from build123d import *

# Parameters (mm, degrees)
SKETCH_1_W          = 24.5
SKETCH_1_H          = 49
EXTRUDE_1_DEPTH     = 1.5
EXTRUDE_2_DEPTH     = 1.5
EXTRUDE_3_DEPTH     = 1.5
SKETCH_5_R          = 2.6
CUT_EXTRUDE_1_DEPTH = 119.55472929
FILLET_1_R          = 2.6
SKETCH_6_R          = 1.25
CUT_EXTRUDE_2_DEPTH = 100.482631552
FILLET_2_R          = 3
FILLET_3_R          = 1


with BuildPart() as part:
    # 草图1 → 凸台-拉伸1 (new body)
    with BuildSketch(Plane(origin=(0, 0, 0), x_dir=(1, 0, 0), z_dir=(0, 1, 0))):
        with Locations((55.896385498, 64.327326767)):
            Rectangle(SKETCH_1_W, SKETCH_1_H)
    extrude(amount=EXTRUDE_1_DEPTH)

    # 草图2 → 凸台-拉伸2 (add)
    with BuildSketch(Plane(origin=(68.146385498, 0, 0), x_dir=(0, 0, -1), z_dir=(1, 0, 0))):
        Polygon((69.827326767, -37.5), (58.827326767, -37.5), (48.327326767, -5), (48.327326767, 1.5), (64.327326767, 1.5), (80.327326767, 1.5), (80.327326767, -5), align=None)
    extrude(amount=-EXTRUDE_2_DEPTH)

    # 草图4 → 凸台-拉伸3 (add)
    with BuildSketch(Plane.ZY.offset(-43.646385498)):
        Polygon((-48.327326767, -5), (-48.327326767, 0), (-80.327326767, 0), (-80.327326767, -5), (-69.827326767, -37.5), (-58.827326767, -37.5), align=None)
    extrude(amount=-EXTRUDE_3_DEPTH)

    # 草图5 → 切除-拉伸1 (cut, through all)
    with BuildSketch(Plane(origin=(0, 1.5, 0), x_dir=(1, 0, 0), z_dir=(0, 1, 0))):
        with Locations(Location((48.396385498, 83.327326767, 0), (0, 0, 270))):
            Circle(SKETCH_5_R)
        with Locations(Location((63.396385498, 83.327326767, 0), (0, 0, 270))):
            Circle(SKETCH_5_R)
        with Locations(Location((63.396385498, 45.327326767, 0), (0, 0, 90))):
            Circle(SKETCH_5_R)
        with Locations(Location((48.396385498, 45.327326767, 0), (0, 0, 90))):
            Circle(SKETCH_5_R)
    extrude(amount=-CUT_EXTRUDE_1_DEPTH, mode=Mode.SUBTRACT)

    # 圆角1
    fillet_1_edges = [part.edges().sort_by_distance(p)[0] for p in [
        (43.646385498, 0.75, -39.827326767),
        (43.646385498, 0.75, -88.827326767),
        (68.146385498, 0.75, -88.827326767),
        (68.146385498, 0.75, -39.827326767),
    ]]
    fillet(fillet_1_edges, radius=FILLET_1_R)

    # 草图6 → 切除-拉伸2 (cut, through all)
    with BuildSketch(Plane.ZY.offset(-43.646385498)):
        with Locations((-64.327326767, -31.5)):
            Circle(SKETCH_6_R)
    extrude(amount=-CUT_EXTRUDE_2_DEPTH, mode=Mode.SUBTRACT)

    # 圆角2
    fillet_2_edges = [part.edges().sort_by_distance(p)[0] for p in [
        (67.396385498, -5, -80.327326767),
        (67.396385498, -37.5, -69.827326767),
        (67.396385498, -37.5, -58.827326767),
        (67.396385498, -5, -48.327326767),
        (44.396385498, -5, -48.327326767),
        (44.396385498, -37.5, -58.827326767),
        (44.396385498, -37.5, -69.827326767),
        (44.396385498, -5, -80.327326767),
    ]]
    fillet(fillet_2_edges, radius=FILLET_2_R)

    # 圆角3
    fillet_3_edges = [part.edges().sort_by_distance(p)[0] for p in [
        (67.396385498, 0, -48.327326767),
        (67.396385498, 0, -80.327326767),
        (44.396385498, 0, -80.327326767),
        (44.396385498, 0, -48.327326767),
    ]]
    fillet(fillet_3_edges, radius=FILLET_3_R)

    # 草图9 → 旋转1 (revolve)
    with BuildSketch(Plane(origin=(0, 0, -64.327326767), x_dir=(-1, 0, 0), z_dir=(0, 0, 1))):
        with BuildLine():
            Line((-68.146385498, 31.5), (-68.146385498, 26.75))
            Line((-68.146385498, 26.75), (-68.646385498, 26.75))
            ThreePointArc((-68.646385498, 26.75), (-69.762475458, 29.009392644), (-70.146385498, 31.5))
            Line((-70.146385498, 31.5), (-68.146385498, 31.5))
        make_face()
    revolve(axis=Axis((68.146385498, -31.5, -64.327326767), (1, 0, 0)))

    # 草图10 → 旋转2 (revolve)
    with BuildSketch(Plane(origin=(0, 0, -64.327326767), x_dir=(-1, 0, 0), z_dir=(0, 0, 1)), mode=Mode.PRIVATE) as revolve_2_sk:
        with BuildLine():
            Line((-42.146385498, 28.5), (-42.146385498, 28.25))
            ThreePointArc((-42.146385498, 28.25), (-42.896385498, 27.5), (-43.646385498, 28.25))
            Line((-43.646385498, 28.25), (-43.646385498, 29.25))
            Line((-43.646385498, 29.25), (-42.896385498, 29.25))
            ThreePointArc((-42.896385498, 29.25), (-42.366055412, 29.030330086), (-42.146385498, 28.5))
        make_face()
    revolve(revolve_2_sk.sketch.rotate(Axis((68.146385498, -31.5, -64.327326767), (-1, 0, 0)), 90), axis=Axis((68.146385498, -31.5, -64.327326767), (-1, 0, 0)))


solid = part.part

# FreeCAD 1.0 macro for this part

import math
import FreeCAD as App
import Part
import Sketcher


def edges_at(feature, points):
    """Names of the edges that pass closest to the given points."""
    edges = feature.Shape.Edges
    near = lambda p: min(range(len(edges)), key=lambda i: edges[i].distToShape(Part.Vertex(*p))[0])
    return sorted({f"Edge{near(p) + 1}" for p in points})

doc = App.newDocument("Part")
params = doc.addObject("Spreadsheet::Sheet", "Params")
for row, (alias, value) in enumerate([
    ("sketch1_height", "49 mm"),
    ("sketch1_width", "24.5 mm"),
    ("pad1_length", "1.5 mm"),
    ("sketch2_height", "11 mm"),
    ("sketch2_height2", "32 mm"),
    ("sketch2_width", "6.5 mm"),
    ("pad2_length", "1.5 mm"),
    ("sketch3_width", "5 mm"),
    ("sketch3_height", "32 mm"),
    ("sketch3_height2", "11 mm"),
    ("pad3_length", "1.5 mm"),
    ("sketch4_diameter", "5.2 mm"),
    ("fillet_radius", "2.6 mm"),
    ("sketch5_diameter", "2.5 mm"),
    ("fillet2_radius", "3 mm"),
    ("fillet3_radius", "1 mm"),
    ("sketch6_width", "2 mm"),
    ("sketch6_width2", "0.5 mm"),
    ("sketch6_height", "4.75 mm"),
    ("revolution_angle", "360 deg"),
    ("sketch7_height", "1 mm"),
    ("sketch7_radius", "0.75 mm"),
    ("revolution2_angle", "360 deg"),
], start=1):
    params.set(f"A{row}", alias)
    params.set(f"B{row}", "=" + value)
    params.setAlias(f"B{row}", alias)

body = doc.addObject("PartDesign::Body", "Body")

sketch1 = body.newObject("Sketcher::SketchObject", "Sketch")
sketch1.AttachmentSupport = (doc.getObject("XZ_Plane"), [""])
sketch1.MapMode = "FlatFace"
sketch1.addGeometry([
    Part.LineSegment(App.Vector(43.646385, -88.827327, 0), App.Vector(43.646385, -39.827327, 0)),
    Part.LineSegment(App.Vector(43.646385, -39.827327, 0), App.Vector(68.146385, -39.827327, 0)),
    Part.LineSegment(App.Vector(68.146385, -39.827327, 0), App.Vector(68.146385, -88.827327, 0)),
    Part.LineSegment(App.Vector(68.146385, -88.827327, 0), App.Vector(43.646385, -88.827327, 0)),
], False)
sketch1.addConstraint([
    Sketcher.Constraint("Coincident", 0, 2, 1, 1),
    Sketcher.Constraint("Coincident", 1, 2, 2, 1),
    Sketcher.Constraint("Coincident", 2, 2, 3, 1),
    Sketcher.Constraint("Coincident", 3, 2, 0, 1),
    Sketcher.Constraint("Vertical", 0),
    Sketcher.Constraint("Horizontal", 1),
    Sketcher.Constraint("Vertical", 2),
    Sketcher.Constraint("Horizontal", 3),
    Sketcher.Constraint("DistanceY", 0, 1, 0, 2, 49.0),
    Sketcher.Constraint("DistanceX", 1, 1, 1, 2, 24.5),
    Sketcher.Constraint("DistanceX", -1, 1, 0, 2, 43.646385),
    Sketcher.Constraint("DistanceY", 0, 2, -1, 1, 39.827327),
])
sketch1.setExpression("Constraints[8]", "Params.sketch1_height")
sketch1.setExpression("Constraints[9]", "Params.sketch1_width")
pad1 = body.newObject("PartDesign::Pad", "Pad")
pad1.Profile = sketch1
pad1.setExpression("Length", "Params.pad1_length")
pad1.Reversed = True

sketch2 = body.newObject("Sketcher::SketchObject", "Sketch001")
sketch2.AttachmentSupport = (doc.getObject("YZ_Plane"), [""])
sketch2.MapMode = "FlatFace"
sketch2.AttachmentOffset = App.Placement(App.Vector(0, 0, 68.146385), App.Rotation())
sketch2.addGeometry([
    Part.LineSegment(App.Vector(-37.5, -58.827327, 0), App.Vector(-37.5, -69.827327, 0)),
    Part.LineSegment(App.Vector(-37.5, -69.827327, 0), App.Vector(-5, -80.327327, 0)),
    Part.LineSegment(App.Vector(-5, -80.327327, 0), App.Vector(1.5, -80.327327, 0)),
    Part.LineSegment(App.Vector(1.5, -80.327327, 0), App.Vector(1.5, -48.327327, 0)),
    Part.LineSegment(App.Vector(1.5, -48.327327, 0), App.Vector(-5, -48.327327, 0)),
    Part.LineSegment(App.Vector(-5, -48.327327, 0), App.Vector(-37.5, -58.827327, 0)),
], False)
sketch2.addConstraint([
    Sketcher.Constraint("Coincident", 0, 2, 1, 1),
    Sketcher.Constraint("Coincident", 1, 2, 2, 1),
    Sketcher.Constraint("Coincident", 2, 2, 3, 1),
    Sketcher.Constraint("Coincident", 3, 2, 4, 1),
    Sketcher.Constraint("Coincident", 4, 2, 5, 1),
    Sketcher.Constraint("Coincident", 5, 2, 0, 1),
    Sketcher.Constraint("Vertical", 0),
    Sketcher.Constraint("Horizontal", 2),
    Sketcher.Constraint("Vertical", 3),
    Sketcher.Constraint("Horizontal", 4),
    Sketcher.Constraint("Vertical", 1, 2, 4, 2),
    Sketcher.Constraint("Equal", 1, 5),
    Sketcher.Constraint("DistanceY", 0, 2, 0, 1, 11.0),
    Sketcher.Constraint("DistanceY", 3, 1, 3, 2, 32.0),
    Sketcher.Constraint("DistanceX", 2, 1, 2, 2, 6.5),
    Sketcher.Constraint("DistanceX", 1, 2, -1, 1, 5.0),
    Sketcher.Constraint("DistanceX", 0, 2, 2, 2, 39.0),
    Sketcher.Constraint("DistanceY", 0, 2, -1, 1, 69.827327),
])
sketch2.setExpression("Constraints[12]", "Params.sketch2_height")
sketch2.setExpression("Constraints[13]", "Params.sketch2_height2")
sketch2.setExpression("Constraints[14]", "Params.sketch2_width")
pad2 = body.newObject("PartDesign::Pad", "Pad001")
pad2.Profile = sketch2
pad2.setExpression("Length", "Params.pad2_length")
pad2.Reversed = True

sketch3 = body.newObject("Sketcher::SketchObject", "Sketch002")
sketch3.AttachmentSupport = (doc.getObject("YZ_Plane"), [""])
sketch3.MapMode = "FlatFace"
sketch3.AttachmentOffset = App.Placement(App.Vector(0, 0, 43.646385), App.Rotation())
sketch3.addGeometry([
    Part.LineSegment(App.Vector(-5, -48.327327, 0), App.Vector(0, -48.327327, 0)),
    Part.LineSegment(App.Vector(0, -48.327327, 0), App.Vector(0, -80.327327, 0)),
    Part.LineSegment(App.Vector(0, -80.327327, 0), App.Vector(-5, -80.327327, 0)),
    Part.LineSegment(App.Vector(-5, -80.327327, 0), App.Vector(-37.5, -69.827327, 0)),
    Part.LineSegment(App.Vector(-37.5, -69.827327, 0), App.Vector(-37.5, -58.827327, 0)),
    Part.LineSegment(App.Vector(-37.5, -58.827327, 0), App.Vector(-5, -48.327327, 0)),
], False)
sketch3.addConstraint([
    Sketcher.Constraint("Coincident", 0, 2, 1, 1),
    Sketcher.Constraint("Coincident", 1, 2, 2, 1),
    Sketcher.Constraint("Coincident", 2, 2, 3, 1),
    Sketcher.Constraint("Coincident", 3, 2, 4, 1),
    Sketcher.Constraint("Coincident", 4, 2, 5, 1),
    Sketcher.Constraint("Coincident", 5, 2, 0, 1),
    Sketcher.Constraint("Horizontal", 0),
    Sketcher.Constraint("Vertical", 1),
    Sketcher.Constraint("Horizontal", 2),
    Sketcher.Constraint("Vertical", 4),
    Sketcher.Constraint("PointOnObject", 0, 2, -2),
    Sketcher.Constraint("Vertical", 2, 2, 5, 2),
    Sketcher.Constraint("Equal", 3, 5),
    Sketcher.Constraint("DistanceX", 0, 1, 0, 2, 5.0),
    Sketcher.Constraint("DistanceY", 1, 2, 1, 1, 32.0),
    Sketcher.Constraint("DistanceY", 4, 1, 4, 2, 11.0),
    Sketcher.Constraint("DistanceX", 3, 2, -1, 1, 37.5),
    Sketcher.Constraint("DistanceY", 0, 2, -1, 1, 48.327327),
])
sketch3.setExpression("Constraints[13]", "Params.sketch3_width")
sketch3.setExpression("Constraints[14]", "Params.sketch3_height")
sketch3.setExpression("Constraints[15]", "Params.sketch3_height2")
pad3 = body.newObject("PartDesign::Pad", "Pad002")
pad3.Profile = sketch3
pad3.setExpression("Length", "Params.pad3_length")

sketch4 = body.newObject("Sketcher::SketchObject", "Sketch003")
sketch4.AttachmentSupport = (doc.getObject("XZ_Plane"), [""])
sketch4.MapMode = "FlatFace"
sketch4.AttachmentOffset = App.Placement(App.Vector(0, 0, -1.5), App.Rotation())
sketch4.addGeometry([
    Part.Circle(App.Vector(48.396385, -83.327327, 0), App.Vector(0, 0, 1), 2.6),
    Part.Circle(App.Vector(63.396385, -83.327327, 0), App.Vector(0, 0, 1), 2.6),
    Part.Circle(App.Vector(63.396385, -45.327327, 0), App.Vector(0, 0, 1), 2.6),
    Part.Circle(App.Vector(48.396385, -45.327327, 0), App.Vector(0, 0, 1), 2.6),
], False)
sketch4.addConstraint([
    Sketcher.Constraint("Equal", 0, 1),
    Sketcher.Constraint("Equal", 1, 2),
    Sketcher.Constraint("Equal", 2, 3),
    Sketcher.Constraint("Horizontal", 0, 3, 1, 3),
    Sketcher.Constraint("Horizontal", 2, 3, 3, 3),
    Sketcher.Constraint("Vertical", 1, 3, 2, 3),
    Sketcher.Constraint("Vertical", 0, 3, 3, 3),
    Sketcher.Constraint("Diameter", 0, 5.2),
    Sketcher.Constraint("DistanceX", 0, 3, 1, 3, 15.0),
    Sketcher.Constraint("DistanceY", 1, 3, 2, 3, 38.0),
    Sketcher.Constraint("DistanceX", -1, 1, 0, 3, 48.396385),
    Sketcher.Constraint("DistanceY", 0, 3, -1, 1, 83.327327),
])
sketch4.setExpression("Constraints[7]", "Params.sketch4_diameter")
pocket1 = body.newObject("PartDesign::Pocket", "Pocket")
pocket1.Profile = sketch4
pocket1.Type = "ThroughAll"
pocket1.Reversed = True
doc.recompute()

fillet = body.newObject("PartDesign::Fillet", "Fillet")
fillet.Base = (pocket1, edges_at(pocket1, [
    (43.646, 0.75, -39.827),
    (43.646, 0.75, -88.827),
    (68.146, 0.75, -88.827),
    (68.146, 0.75, -39.827),
]))
fillet.setExpression("Radius", "Params.fillet_radius")

sketch5 = body.newObject("Sketcher::SketchObject", "Sketch004")
sketch5.AttachmentSupport = (doc.getObject("YZ_Plane"), [""])
sketch5.MapMode = "FlatFace"
sketch5.AttachmentOffset = App.Placement(App.Vector(0, 0, 43.646385), App.Rotation())
sketch5.addGeometry(Part.Circle(App.Vector(-31.5, -64.327327, 0), App.Vector(0, 0, 1), 1.25), False)
sketch5.addConstraint([
    Sketcher.Constraint("Diameter", 0, 2.5),
    Sketcher.Constraint("DistanceX", 0, 3, -1, 1, 31.5),
    Sketcher.Constraint("DistanceY", 0, 3, -1, 1, 64.327327),
])
sketch5.setExpression("Constraints[0]", "Params.sketch5_diameter")
pocket2 = body.newObject("PartDesign::Pocket", "Pocket001")
pocket2.Profile = sketch5
pocket2.Type = "ThroughAll"
pocket2.Reversed = True
doc.recompute()

fillet2 = body.newObject("PartDesign::Fillet", "Fillet001")
fillet2.Base = (pocket2, edges_at(pocket2, [
    (67.396, -5, -80.327),
    (67.396, -37.5, -69.827),
    (67.396, -37.5, -58.827),
    (67.396, -5, -48.327),
    (44.396, -5, -48.327),
    (44.396, -37.5, -58.827),
    (44.396, -37.5, -69.827),
    (44.396, -5, -80.327),
]))
fillet2.setExpression("Radius", "Params.fillet2_radius")
doc.recompute()

fillet3 = body.newObject("PartDesign::Fillet", "Fillet002")
fillet3.Base = (fillet2, edges_at(fillet2, [
    (67.396, 0, -48.327),
    (67.396, 0, -80.327),
    (44.396, 0, -80.327),
    (44.396, 0, -48.327),
]))
fillet3.setExpression("Radius", "Params.fillet3_radius")

sketch6 = body.newObject("Sketcher::SketchObject", "Sketch005")
sketch6.AttachmentSupport = (doc.getObject("XY_Plane"), [""])
sketch6.MapMode = "FlatFace"
sketch6.AttachmentOffset = App.Placement(App.Vector(0, 0, -64.327327), App.Rotation())
sketch6.addGeometry([
    Part.LineSegment(App.Vector(68.146385, -26.75, 0), App.Vector(68.146385, -31.5, 0)),
    Part.LineSegment(App.Vector(68.146385, -31.5, 0), App.Vector(70.146385, -31.5, 0)),
    Part.ArcOfCircle(Part.Circle(App.Vector(61.875552, -31.5, 0), App.Vector(0, 0, 1), 8.270833), math.radians(0), math.radians(35.051137)),
    Part.LineSegment(App.Vector(68.646385, -26.75, 0), App.Vector(68.146385, -26.75, 0)),
], False)
sketch6.addGeometry(Part.LineSegment(App.Vector(61.875552, -31.5, 0), App.Vector(70.146385, -31.5, 0)), True)
sketch6.addConstraint([
    Sketcher.Constraint("Coincident", 0, 2, 1, 1),
    Sketcher.Constraint("Coincident", 1, 2, 2, 1),
    Sketcher.Constraint("Coincident", 2, 2, 3, 1),
    Sketcher.Constraint("Coincident", 3, 2, 0, 1),
    Sketcher.Constraint("Vertical", 0),
    Sketcher.Constraint("Horizontal", 1),
    Sketcher.Constraint("Horizontal", 3),
    Sketcher.Constraint("Horizontal", 4),
    Sketcher.Constraint("Coincident", 4, 1, 2, 3),
    Sketcher.Constraint("Coincident", 4, 2, 1, 2),
    Sketcher.Constraint("DistanceX", 1, 1, 1, 2, 2.0),
    Sketcher.Constraint("DistanceX", 3, 2, 3, 1, 0.5),
    Sketcher.Constraint("DistanceY", 0, 2, 0, 1, 4.75),
    Sketcher.Constraint("DistanceY", 2, 3, -1, 1, 31.5),
    Sketcher.Constraint("DistanceX", -1, 1, 2, 3, 61.875552),
])
sketch6.setExpression("Constraints[10]", "Params.sketch6_width")
sketch6.setExpression("Constraints[11]", "Params.sketch6_width2")
sketch6.setExpression("Constraints[12]", "Params.sketch6_height")
revolution = body.newObject("PartDesign::Revolution", "Revolution")
revolution.Profile = sketch6
revolution.ReferenceAxis = (sketch6, ["Axis0"])
revolution.setExpression("Angle", "Params.revolution_angle")

sketch7 = body.newObject("Sketcher::SketchObject", "Sketch006")
sketch7.AttachmentSupport = (doc.getObject("XY_Plane"), [""])
sketch7.MapMode = "FlatFace"
sketch7.AttachmentOffset = App.Placement(App.Vector(0, 0, -64.327327), App.Rotation())
sketch7.addGeometry([
    Part.LineSegment(App.Vector(42.146385, -28.25, 0), App.Vector(42.146385, -28.5, 0)),
    Part.ArcOfCircle(Part.Circle(App.Vector(42.896385, -28.5, 0), App.Vector(0, 0, 1), 0.75), math.radians(180), math.radians(270)),
    Part.LineSegment(App.Vector(42.896385, -29.25, 0), App.Vector(43.646385, -29.25, 0)),
    Part.LineSegment(App.Vector(43.646385, -29.25, 0), App.Vector(43.646385, -28.25, 0)),
    Part.ArcOfCircle(Part.Circle(App.Vector(42.896385, -28.25, 0), App.Vector(0, 0, 1), 0.75), math.radians(0), math.radians(180)),
], False)
sketch7.addGeometry(Part.LineSegment(App.Vector(43.646385, -31.5, 0), App.Vector(42.146385, -31.5, 0)), True)
sketch7.addConstraint([
    Sketcher.Constraint("Tangent", 0, 2, 1, 1),
    Sketcher.Constraint("Tangent", 1, 2, 2, 1),
    Sketcher.Constraint("Coincident", 2, 2, 3, 1),
    Sketcher.Constraint("Tangent", 3, 2, 4, 1),
    Sketcher.Constraint("Tangent", 4, 2, 0, 1),
    Sketcher.Constraint("Vertical", 0),
    Sketcher.Constraint("Horizontal", 2),
    Sketcher.Constraint("Vertical", 3),
    Sketcher.Constraint("Horizontal", 5),
    Sketcher.Constraint("Equal", 1, 4),
    Sketcher.Constraint("Vertical", 3, 2, 5, 1),
    Sketcher.Constraint("Vertical", 4, 2, 5, 2),
    Sketcher.Constraint("DistanceY", 3, 1, 3, 2, 1.0),
    Sketcher.Constraint("Radius", 1, 0.75),
    Sketcher.Constraint("DistanceY", 5, 1, 1, 3, 3.0),
    Sketcher.Constraint("DistanceY", 1, 3, -1, 1, 28.5),
    Sketcher.Constraint("DistanceX", -1, 1, 1, 3, 42.896385),
])
sketch7.setExpression("Constraints[12]", "Params.sketch7_height")
sketch7.setExpression("Constraints[13]", "Params.sketch7_radius")
revolution2 = body.newObject("PartDesign::Revolution", "Revolution001")
revolution2.Profile = sketch7
revolution2.ReferenceAxis = (sketch7, ["Axis0"])
revolution2.setExpression("Angle", "Params.revolution2_angle")

doc.recompute()
